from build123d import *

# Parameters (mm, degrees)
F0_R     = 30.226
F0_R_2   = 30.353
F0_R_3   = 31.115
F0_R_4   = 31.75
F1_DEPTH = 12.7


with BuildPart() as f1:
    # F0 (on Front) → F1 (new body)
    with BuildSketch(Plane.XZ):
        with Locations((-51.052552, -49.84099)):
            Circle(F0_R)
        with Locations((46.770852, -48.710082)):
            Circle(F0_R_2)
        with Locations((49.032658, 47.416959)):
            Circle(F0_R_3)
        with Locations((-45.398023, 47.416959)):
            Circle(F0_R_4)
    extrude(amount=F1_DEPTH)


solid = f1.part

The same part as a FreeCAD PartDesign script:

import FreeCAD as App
import Part
import Sketcher
Q = App.Units.Quantity

doc = App.newDocument("Part")
body = doc.addObject("PartDesign::Body", "Body")
body.AllowCompound = True

# Sketch on XZ plane
sketch1 = doc.addObject("Sketcher::SketchObject", "Sketch")
body.addObject(sketch1)
sketch1.AttachmentSupport = (doc.XZ_Plane, [""])
sketch1.MapMode = "FlatFace"
sketch1.addGeometry([
    Part.Circle(App.Vector(-51.052552, -49.84099, 0), App.Vector(0, 0, 1), 30.226),
    Part.Circle(App.Vector(46.770852, -48.710082, 0), App.Vector(0, 0, 1), 30.353),
    Part.Circle(App.Vector(49.032658, 47.416959, 0), App.Vector(0, 0, 1), 31.115),
    Part.Circle(App.Vector(-45.398023, 47.416959, 0), App.Vector(0, 0, 1), 31.75),
], False)
sketch1.addConstraint([
    Sketcher.Constraint("Horizontal", 2, 3, 3, 3),
    Sketcher.Constraint("Diameter", 3, Q("2.5 in")),
    Sketcher.Constraint("Diameter", 0, Q("2.38 in")),
    Sketcher.Constraint("Diameter", 1, Q("2.39 in")),
    Sketcher.Constraint("Diameter", 2, Q("2.45 in")),
    Sketcher.Constraint("DistanceY", 0, 3, -1, 1, 49.84099),
    Sketcher.Constraint("DistanceX", -1, 1, 1, 3, 46.770852),
    Sketcher.Constraint("DistanceY", -1, 1, 2, 3, 47.416959),
    Sketcher.Constraint("DistanceY", 1, 3, 2, 3, 96.127041),
    Sketcher.Constraint("DistanceX", 0, 3, 2, 3, 100.08521),
    Sketcher.Constraint("DistanceX", 3, 3, 2, 3, 94.430681),
    Sketcher.Constraint("DistanceX", 0, 3, -1, 1, 51.052552),
])
pad1 = doc.addObject("PartDesign::Pad", "Pad")
body.addObject(pad1)
pad1.Profile = sketch1
pad1.Length = Q("0.5 in")

doc.recompute()
